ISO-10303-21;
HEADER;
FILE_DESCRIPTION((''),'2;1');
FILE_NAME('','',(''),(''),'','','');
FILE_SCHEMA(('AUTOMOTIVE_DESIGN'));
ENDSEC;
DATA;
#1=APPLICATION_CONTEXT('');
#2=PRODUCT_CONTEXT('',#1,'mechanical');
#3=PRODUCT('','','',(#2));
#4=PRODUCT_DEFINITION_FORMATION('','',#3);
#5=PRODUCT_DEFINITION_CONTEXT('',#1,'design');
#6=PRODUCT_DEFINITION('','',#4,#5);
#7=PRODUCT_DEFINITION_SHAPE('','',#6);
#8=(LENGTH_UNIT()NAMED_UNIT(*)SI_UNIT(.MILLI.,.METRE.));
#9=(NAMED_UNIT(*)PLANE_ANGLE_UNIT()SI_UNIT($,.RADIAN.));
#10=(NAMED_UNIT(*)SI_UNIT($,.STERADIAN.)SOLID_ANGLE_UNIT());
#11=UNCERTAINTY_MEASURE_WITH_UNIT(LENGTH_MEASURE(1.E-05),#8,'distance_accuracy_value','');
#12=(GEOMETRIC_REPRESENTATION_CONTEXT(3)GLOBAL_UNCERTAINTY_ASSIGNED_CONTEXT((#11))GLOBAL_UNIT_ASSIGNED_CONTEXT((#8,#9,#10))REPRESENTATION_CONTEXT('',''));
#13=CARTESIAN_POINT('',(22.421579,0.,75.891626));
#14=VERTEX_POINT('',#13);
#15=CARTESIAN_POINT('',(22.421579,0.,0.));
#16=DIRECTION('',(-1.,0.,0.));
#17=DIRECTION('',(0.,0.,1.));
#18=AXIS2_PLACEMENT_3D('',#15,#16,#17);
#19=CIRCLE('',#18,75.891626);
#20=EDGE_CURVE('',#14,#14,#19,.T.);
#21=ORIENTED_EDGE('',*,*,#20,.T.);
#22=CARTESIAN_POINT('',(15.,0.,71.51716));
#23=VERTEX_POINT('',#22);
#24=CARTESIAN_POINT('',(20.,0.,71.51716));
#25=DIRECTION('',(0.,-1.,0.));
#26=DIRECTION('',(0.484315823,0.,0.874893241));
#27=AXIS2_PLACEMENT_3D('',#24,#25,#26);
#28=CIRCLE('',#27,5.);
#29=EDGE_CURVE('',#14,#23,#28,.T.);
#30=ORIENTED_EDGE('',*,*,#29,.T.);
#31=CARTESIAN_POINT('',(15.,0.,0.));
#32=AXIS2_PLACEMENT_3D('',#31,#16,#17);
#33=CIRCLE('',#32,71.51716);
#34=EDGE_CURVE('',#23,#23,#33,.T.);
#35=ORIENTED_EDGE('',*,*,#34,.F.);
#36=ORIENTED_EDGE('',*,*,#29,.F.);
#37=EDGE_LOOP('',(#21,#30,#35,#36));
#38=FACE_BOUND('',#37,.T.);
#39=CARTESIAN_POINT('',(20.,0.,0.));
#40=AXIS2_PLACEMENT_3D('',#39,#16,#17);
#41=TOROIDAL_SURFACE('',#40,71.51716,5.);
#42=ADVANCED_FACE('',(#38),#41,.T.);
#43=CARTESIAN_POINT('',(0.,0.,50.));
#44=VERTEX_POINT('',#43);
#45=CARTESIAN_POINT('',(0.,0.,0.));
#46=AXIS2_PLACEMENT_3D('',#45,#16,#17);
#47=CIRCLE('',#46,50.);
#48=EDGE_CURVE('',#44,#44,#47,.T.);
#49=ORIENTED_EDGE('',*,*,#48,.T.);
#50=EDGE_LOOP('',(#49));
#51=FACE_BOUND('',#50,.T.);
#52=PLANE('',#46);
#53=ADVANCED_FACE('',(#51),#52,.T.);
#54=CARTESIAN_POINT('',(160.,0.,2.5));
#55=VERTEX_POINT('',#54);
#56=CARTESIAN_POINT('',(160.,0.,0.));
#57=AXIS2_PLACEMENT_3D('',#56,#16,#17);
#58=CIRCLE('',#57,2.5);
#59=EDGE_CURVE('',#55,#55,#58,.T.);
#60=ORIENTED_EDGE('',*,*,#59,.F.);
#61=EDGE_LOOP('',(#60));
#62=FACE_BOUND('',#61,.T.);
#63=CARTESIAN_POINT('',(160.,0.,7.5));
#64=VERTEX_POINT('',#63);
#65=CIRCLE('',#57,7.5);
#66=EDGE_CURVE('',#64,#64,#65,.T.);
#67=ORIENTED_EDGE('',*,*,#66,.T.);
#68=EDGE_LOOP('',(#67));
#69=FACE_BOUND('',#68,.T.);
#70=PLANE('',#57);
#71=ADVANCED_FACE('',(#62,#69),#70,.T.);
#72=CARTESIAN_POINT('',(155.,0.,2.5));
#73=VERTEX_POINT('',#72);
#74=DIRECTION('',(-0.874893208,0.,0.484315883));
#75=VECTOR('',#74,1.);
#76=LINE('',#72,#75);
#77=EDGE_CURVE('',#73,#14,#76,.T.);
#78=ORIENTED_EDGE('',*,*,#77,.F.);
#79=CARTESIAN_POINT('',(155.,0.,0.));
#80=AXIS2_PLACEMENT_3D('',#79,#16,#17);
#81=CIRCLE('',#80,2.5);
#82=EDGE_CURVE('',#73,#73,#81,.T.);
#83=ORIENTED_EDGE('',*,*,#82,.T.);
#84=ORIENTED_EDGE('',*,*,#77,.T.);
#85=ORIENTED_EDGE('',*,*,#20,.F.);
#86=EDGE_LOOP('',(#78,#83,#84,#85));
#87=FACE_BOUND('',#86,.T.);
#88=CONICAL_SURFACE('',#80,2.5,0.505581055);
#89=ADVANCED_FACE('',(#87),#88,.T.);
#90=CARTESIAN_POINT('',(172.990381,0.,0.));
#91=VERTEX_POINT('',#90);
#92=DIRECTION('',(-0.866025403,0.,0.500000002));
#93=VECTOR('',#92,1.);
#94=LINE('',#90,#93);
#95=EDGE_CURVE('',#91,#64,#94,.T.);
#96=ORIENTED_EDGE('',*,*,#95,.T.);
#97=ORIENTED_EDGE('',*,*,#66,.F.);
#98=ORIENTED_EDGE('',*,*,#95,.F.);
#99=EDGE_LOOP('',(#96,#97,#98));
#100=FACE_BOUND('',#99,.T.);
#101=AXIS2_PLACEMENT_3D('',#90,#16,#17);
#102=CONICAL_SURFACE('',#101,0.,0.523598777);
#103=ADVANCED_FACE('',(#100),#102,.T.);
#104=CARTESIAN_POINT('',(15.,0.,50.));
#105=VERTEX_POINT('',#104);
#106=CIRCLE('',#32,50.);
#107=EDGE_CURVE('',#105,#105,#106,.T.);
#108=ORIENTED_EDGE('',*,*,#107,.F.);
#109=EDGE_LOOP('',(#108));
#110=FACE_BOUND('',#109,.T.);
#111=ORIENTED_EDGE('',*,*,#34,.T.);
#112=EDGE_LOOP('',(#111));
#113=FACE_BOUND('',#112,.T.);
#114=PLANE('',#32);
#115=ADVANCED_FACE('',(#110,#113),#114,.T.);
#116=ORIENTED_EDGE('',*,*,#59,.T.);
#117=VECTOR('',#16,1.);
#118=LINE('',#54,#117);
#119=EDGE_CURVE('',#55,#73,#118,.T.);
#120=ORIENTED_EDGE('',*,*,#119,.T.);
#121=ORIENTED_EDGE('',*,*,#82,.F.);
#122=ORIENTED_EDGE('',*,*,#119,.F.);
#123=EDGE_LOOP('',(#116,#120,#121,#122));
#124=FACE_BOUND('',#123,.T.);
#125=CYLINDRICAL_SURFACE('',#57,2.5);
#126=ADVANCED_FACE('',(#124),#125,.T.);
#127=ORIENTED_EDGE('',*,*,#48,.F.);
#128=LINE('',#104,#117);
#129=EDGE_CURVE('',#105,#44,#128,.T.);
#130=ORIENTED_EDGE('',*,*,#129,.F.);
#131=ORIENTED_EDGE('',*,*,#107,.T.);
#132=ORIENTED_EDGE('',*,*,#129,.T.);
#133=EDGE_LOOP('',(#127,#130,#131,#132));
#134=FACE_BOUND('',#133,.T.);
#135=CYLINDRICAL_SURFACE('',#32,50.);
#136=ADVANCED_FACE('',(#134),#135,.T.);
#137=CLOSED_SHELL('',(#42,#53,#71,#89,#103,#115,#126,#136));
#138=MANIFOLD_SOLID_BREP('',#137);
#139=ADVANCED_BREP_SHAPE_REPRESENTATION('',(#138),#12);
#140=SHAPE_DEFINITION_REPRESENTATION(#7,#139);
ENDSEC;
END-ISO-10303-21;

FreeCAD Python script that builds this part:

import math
import FreeCAD as App
import Part
import Sketcher
from FreeCAD import Vector
Q = App.Units.Quantity

doc = App.newDocument("Part")
body = doc.addObject("PartDesign::Body", "Body")

# Sketch on XZ plane
sketch1 = doc.addObject("Sketcher::SketchObject", "Sketch")
body.addObject(sketch1)
sketch1.AttachmentSupport = (doc.XZ_Plane, [""])
sketch1.MapMode = "FlatFace"
sketch1.addGeometry(Part.LineSegment(Vector(0, 50, 0), Vector(0, 0, 0)), False)
sketch1.addGeometry(Part.LineSegment(Vector(0, 0, 0), Vector(172.990381, 0, 0)), False)
sketch1.addGeometry(Part.LineSegment(Vector(172.990381, 0, 0), Vector(160, 7.5, 0)), False)
sketch1.addGeometry(Part.LineSegment(Vector(160, 7.5, 0), Vector(160, 2.5, 0)), False)
sketch1.addGeometry(Part.LineSegment(Vector(160, 2.5, 0), Vector(155, 2.5, 0)), False)
sketch1.addGeometry(Part.LineSegment(Vector(155, 2.5, 0), Vector(22.421579, 75.891626, 0)), False)
sketch1.addGeometry(Part.ArcOfCircle(Part.Circle(Vector(20, 71.51716, 0), Vector(0, 0, 1), 5), math.radians(61.032343), math.radians(179.999998)), False)
sketch1.addGeometry(Part.LineSegment(Vector(15, 71.51716, 0), Vector(15, 50, 0)), False)
sketch1.addGeometry(Part.LineSegment(Vector(15, 50, 0), Vector(0, 50, 0)), False)
sketch1.addConstraint(Sketcher.Constraint("Coincident", 0, 2, 1, 1))
sketch1.addConstraint(Sketcher.Constraint("Coincident", 1, 2, 2, 1))
sketch1.addConstraint(Sketcher.Constraint("Coincident", 2, 2, 3, 1))
sketch1.addConstraint(Sketcher.Constraint("Coincident", 3, 2, 4, 1))
sketch1.addConstraint(Sketcher.Constraint("Coincident", 4, 2, 5, 1))
sketch1.addConstraint(Sketcher.Constraint("Tangent", 5, 2, 6, 1))
sketch1.addConstraint(Sketcher.Constraint("Tangent", 6, 2, 7, 1))
sketch1.addConstraint(Sketcher.Constraint("Coincident", 7, 2, 8, 1))
sketch1.addConstraint(Sketcher.Constraint("Coincident", 8, 2, 0, 1))
sketch1.addConstraint(Sketcher.Constraint("Vertical", 0))
sketch1.addConstraint(Sketcher.Constraint("Horizontal", 1))
sketch1.addConstraint(Sketcher.Constraint("Vertical", 3))
sketch1.addConstraint(Sketcher.Constraint("Horizontal", 4))
sketch1.addConstraint(Sketcher.Constraint("Vertical", 7))
sketch1.addConstraint(Sketcher.Constraint("Horizontal", 8))
sketch1.addConstraint(Sketcher.Constraint("Coincident", 0, 2, -1, 1))
sketch1.addConstraint(Sketcher.Constraint("Equal", 4, 3))
sketch1.addConstraint(Sketcher.Constraint("Radius", 6, 5.0))
sketch1.addConstraint(Sketcher.Constraint("DistanceX", 4, 2, 4, 1, 5.0))
sketch1.addConstraint(Sketcher.Constraint("DistanceX", 8, 2, 8, 1, 15.0))
sketch1.addConstraint(Sketcher.Constraint("DistanceY", 0, 2, 0, 1, 50.0))
sketch1.addConstraint(Sketcher.Constraint("Angle", 2, Q("150 deg")))
sketch1.addConstraint(Sketcher.Constraint("Distance", 2, 15.0))
sketch1.addConstraint(Sketcher.Constraint("DistanceX", -1, 1, 2, 2, 160.0))
sketch1.addConstraint(Sketcher.Constraint("DistanceY", 7, 2, 7, 1, 21.51716))
revolution = doc.addObject("PartDesign::Revolution", "Revolution")
body.addObject(revolution)
revolution.Profile = sketch1
revolution.ReferenceAxis = (sketch1, ["H_Axis"])
revolution.Angle = 360

doc.recompute()
